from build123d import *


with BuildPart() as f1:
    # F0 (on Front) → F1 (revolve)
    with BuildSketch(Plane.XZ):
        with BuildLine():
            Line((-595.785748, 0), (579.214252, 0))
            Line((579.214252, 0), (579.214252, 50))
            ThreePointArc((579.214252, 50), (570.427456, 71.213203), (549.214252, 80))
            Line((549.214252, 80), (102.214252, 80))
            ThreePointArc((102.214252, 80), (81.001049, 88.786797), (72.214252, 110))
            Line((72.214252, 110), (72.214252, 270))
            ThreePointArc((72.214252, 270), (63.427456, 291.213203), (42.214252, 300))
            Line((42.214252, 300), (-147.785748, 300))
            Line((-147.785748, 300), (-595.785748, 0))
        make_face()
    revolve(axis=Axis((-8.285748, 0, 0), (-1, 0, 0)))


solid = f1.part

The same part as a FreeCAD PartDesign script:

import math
import FreeCAD as App
import Part
import Sketcher
from FreeCAD import Vector

doc = App.newDocument("Part")
params = doc.addObject("Spreadsheet::Sheet", "Params")
for row, (alias, value) in enumerate([
    ("sketch1_radius", "30 mm"),
    ("sketch1_width", "1175 mm"),
    ("sketch1_width2", "447 mm"),
    ("sketch1_width3", "190 mm"),
    ("sketch1_height", "50 mm"),
    ("revolution_angle", "360 deg"),
], start=1):
    params.set(f"A{row}", alias)
    params.set(f"B{row}", "=" + value)
    params.setAlias(f"B{row}", alias)

body = doc.addObject("PartDesign::Body", "Body")

sketch1 = body.newObject("Sketcher::SketchObject", "Sketch")
sketch1.AttachmentSupport = (doc.getObject("XZ_Plane"), [""])
sketch1.MapMode = "FlatFace"
sketch1.addGeometry([
    Part.LineSegment(Vector(-596, 0, 0), Vector(579, 0, 0)),
    Part.LineSegment(Vector(579, 0, 0), Vector(579, 50, 0)),
    Part.ArcOfCircle(Part.Circle(Vector(549, 50, 0), Vector(0, 0, 1), 30), math.radians(0), math.radians(90)),
    Part.LineSegment(Vector(549, 80, 0), Vector(102, 80, 0)),
    Part.ArcOfCircle(Part.Circle(Vector(102, 110, 0), Vector(0, 0, 1), 30), math.radians(-180), math.radians(-90)),
    Part.LineSegment(Vector(72, 110, 0), Vector(72, 270, 0)),
    Part.ArcOfCircle(Part.Circle(Vector(42, 270, 0), Vector(0, 0, 1), 30), math.radians(0), math.radians(90)),
    Part.LineSegment(Vector(42, 300, 0), Vector(-148, 300, 0)),
    Part.LineSegment(Vector(-148, 300, 0), Vector(-596, 0, 0)),
], False)
sketch1.addConstraint([
    Sketcher.Constraint("Coincident", 0, 2, 1, 1),
    Sketcher.Constraint("Tangent", 1, 2, 2, 1),
    Sketcher.Constraint("Tangent", 2, 2, 3, 1),
    Sketcher.Constraint("Tangent", 3, 2, 4, 2),
    Sketcher.Constraint("Tangent", 4, 1, 5, 1),
    Sketcher.Constraint("Tangent", 5, 2, 6, 1),
    Sketcher.Constraint("Tangent", 6, 2, 7, 1),
    Sketcher.Constraint("Coincident", 7, 2, 8, 1),
    Sketcher.Constraint("Coincident", 8, 2, 0, 1),
    Sketcher.Constraint("Horizontal", 0),
    Sketcher.Constraint("Vertical", 1),
    Sketcher.Constraint("Horizontal", 3),
    Sketcher.Constraint("Vertical", 5),
    Sketcher.Constraint("Horizontal", 7),
    Sketcher.Constraint("Equal", 2, 4),
    Sketcher.Constraint("Equal", 4, 6),
    Sketcher.Constraint("PointOnObject", 0, 2, -1),
    Sketcher.Constraint("Radius", 2, 30.0),
    Sketcher.Constraint("DistanceX", 0, 1, 0, 2, 1175.0),
    Sketcher.Constraint("DistanceX", 3, 2, 3, 1, 447.0),
    Sketcher.Constraint("DistanceX", 7, 2, 7, 1, 190.0),
    Sketcher.Constraint("DistanceY", 1, 1, 1, 2, 50.0),
    Sketcher.Constraint("DistanceY", 5, 1, 5, 2, 160.0),
    Sketcher.Constraint("DistanceX", -1, 1, 0, 2, 579.214252),
])
sketch1.setExpression("Constraints[17]", "Params.sketch1_radius")
sketch1.setExpression("Constraints[18]", "Params.sketch1_width")
sketch1.setExpression("Constraints[19]", "Params.sketch1_width2")
sketch1.setExpression("Constraints[20]", "Params.sketch1_width3")
sketch1.setExpression("Constraints[21]", "Params.sketch1_height")
revolution = body.newObject("PartDesign::Revolution", "Revolution")
revolution.Profile = sketch1
revolution.ReferenceAxis = (sketch1, ["H_Axis"])
revolution.setExpression("Angle", "Params.revolution_angle")

doc.recompute()
